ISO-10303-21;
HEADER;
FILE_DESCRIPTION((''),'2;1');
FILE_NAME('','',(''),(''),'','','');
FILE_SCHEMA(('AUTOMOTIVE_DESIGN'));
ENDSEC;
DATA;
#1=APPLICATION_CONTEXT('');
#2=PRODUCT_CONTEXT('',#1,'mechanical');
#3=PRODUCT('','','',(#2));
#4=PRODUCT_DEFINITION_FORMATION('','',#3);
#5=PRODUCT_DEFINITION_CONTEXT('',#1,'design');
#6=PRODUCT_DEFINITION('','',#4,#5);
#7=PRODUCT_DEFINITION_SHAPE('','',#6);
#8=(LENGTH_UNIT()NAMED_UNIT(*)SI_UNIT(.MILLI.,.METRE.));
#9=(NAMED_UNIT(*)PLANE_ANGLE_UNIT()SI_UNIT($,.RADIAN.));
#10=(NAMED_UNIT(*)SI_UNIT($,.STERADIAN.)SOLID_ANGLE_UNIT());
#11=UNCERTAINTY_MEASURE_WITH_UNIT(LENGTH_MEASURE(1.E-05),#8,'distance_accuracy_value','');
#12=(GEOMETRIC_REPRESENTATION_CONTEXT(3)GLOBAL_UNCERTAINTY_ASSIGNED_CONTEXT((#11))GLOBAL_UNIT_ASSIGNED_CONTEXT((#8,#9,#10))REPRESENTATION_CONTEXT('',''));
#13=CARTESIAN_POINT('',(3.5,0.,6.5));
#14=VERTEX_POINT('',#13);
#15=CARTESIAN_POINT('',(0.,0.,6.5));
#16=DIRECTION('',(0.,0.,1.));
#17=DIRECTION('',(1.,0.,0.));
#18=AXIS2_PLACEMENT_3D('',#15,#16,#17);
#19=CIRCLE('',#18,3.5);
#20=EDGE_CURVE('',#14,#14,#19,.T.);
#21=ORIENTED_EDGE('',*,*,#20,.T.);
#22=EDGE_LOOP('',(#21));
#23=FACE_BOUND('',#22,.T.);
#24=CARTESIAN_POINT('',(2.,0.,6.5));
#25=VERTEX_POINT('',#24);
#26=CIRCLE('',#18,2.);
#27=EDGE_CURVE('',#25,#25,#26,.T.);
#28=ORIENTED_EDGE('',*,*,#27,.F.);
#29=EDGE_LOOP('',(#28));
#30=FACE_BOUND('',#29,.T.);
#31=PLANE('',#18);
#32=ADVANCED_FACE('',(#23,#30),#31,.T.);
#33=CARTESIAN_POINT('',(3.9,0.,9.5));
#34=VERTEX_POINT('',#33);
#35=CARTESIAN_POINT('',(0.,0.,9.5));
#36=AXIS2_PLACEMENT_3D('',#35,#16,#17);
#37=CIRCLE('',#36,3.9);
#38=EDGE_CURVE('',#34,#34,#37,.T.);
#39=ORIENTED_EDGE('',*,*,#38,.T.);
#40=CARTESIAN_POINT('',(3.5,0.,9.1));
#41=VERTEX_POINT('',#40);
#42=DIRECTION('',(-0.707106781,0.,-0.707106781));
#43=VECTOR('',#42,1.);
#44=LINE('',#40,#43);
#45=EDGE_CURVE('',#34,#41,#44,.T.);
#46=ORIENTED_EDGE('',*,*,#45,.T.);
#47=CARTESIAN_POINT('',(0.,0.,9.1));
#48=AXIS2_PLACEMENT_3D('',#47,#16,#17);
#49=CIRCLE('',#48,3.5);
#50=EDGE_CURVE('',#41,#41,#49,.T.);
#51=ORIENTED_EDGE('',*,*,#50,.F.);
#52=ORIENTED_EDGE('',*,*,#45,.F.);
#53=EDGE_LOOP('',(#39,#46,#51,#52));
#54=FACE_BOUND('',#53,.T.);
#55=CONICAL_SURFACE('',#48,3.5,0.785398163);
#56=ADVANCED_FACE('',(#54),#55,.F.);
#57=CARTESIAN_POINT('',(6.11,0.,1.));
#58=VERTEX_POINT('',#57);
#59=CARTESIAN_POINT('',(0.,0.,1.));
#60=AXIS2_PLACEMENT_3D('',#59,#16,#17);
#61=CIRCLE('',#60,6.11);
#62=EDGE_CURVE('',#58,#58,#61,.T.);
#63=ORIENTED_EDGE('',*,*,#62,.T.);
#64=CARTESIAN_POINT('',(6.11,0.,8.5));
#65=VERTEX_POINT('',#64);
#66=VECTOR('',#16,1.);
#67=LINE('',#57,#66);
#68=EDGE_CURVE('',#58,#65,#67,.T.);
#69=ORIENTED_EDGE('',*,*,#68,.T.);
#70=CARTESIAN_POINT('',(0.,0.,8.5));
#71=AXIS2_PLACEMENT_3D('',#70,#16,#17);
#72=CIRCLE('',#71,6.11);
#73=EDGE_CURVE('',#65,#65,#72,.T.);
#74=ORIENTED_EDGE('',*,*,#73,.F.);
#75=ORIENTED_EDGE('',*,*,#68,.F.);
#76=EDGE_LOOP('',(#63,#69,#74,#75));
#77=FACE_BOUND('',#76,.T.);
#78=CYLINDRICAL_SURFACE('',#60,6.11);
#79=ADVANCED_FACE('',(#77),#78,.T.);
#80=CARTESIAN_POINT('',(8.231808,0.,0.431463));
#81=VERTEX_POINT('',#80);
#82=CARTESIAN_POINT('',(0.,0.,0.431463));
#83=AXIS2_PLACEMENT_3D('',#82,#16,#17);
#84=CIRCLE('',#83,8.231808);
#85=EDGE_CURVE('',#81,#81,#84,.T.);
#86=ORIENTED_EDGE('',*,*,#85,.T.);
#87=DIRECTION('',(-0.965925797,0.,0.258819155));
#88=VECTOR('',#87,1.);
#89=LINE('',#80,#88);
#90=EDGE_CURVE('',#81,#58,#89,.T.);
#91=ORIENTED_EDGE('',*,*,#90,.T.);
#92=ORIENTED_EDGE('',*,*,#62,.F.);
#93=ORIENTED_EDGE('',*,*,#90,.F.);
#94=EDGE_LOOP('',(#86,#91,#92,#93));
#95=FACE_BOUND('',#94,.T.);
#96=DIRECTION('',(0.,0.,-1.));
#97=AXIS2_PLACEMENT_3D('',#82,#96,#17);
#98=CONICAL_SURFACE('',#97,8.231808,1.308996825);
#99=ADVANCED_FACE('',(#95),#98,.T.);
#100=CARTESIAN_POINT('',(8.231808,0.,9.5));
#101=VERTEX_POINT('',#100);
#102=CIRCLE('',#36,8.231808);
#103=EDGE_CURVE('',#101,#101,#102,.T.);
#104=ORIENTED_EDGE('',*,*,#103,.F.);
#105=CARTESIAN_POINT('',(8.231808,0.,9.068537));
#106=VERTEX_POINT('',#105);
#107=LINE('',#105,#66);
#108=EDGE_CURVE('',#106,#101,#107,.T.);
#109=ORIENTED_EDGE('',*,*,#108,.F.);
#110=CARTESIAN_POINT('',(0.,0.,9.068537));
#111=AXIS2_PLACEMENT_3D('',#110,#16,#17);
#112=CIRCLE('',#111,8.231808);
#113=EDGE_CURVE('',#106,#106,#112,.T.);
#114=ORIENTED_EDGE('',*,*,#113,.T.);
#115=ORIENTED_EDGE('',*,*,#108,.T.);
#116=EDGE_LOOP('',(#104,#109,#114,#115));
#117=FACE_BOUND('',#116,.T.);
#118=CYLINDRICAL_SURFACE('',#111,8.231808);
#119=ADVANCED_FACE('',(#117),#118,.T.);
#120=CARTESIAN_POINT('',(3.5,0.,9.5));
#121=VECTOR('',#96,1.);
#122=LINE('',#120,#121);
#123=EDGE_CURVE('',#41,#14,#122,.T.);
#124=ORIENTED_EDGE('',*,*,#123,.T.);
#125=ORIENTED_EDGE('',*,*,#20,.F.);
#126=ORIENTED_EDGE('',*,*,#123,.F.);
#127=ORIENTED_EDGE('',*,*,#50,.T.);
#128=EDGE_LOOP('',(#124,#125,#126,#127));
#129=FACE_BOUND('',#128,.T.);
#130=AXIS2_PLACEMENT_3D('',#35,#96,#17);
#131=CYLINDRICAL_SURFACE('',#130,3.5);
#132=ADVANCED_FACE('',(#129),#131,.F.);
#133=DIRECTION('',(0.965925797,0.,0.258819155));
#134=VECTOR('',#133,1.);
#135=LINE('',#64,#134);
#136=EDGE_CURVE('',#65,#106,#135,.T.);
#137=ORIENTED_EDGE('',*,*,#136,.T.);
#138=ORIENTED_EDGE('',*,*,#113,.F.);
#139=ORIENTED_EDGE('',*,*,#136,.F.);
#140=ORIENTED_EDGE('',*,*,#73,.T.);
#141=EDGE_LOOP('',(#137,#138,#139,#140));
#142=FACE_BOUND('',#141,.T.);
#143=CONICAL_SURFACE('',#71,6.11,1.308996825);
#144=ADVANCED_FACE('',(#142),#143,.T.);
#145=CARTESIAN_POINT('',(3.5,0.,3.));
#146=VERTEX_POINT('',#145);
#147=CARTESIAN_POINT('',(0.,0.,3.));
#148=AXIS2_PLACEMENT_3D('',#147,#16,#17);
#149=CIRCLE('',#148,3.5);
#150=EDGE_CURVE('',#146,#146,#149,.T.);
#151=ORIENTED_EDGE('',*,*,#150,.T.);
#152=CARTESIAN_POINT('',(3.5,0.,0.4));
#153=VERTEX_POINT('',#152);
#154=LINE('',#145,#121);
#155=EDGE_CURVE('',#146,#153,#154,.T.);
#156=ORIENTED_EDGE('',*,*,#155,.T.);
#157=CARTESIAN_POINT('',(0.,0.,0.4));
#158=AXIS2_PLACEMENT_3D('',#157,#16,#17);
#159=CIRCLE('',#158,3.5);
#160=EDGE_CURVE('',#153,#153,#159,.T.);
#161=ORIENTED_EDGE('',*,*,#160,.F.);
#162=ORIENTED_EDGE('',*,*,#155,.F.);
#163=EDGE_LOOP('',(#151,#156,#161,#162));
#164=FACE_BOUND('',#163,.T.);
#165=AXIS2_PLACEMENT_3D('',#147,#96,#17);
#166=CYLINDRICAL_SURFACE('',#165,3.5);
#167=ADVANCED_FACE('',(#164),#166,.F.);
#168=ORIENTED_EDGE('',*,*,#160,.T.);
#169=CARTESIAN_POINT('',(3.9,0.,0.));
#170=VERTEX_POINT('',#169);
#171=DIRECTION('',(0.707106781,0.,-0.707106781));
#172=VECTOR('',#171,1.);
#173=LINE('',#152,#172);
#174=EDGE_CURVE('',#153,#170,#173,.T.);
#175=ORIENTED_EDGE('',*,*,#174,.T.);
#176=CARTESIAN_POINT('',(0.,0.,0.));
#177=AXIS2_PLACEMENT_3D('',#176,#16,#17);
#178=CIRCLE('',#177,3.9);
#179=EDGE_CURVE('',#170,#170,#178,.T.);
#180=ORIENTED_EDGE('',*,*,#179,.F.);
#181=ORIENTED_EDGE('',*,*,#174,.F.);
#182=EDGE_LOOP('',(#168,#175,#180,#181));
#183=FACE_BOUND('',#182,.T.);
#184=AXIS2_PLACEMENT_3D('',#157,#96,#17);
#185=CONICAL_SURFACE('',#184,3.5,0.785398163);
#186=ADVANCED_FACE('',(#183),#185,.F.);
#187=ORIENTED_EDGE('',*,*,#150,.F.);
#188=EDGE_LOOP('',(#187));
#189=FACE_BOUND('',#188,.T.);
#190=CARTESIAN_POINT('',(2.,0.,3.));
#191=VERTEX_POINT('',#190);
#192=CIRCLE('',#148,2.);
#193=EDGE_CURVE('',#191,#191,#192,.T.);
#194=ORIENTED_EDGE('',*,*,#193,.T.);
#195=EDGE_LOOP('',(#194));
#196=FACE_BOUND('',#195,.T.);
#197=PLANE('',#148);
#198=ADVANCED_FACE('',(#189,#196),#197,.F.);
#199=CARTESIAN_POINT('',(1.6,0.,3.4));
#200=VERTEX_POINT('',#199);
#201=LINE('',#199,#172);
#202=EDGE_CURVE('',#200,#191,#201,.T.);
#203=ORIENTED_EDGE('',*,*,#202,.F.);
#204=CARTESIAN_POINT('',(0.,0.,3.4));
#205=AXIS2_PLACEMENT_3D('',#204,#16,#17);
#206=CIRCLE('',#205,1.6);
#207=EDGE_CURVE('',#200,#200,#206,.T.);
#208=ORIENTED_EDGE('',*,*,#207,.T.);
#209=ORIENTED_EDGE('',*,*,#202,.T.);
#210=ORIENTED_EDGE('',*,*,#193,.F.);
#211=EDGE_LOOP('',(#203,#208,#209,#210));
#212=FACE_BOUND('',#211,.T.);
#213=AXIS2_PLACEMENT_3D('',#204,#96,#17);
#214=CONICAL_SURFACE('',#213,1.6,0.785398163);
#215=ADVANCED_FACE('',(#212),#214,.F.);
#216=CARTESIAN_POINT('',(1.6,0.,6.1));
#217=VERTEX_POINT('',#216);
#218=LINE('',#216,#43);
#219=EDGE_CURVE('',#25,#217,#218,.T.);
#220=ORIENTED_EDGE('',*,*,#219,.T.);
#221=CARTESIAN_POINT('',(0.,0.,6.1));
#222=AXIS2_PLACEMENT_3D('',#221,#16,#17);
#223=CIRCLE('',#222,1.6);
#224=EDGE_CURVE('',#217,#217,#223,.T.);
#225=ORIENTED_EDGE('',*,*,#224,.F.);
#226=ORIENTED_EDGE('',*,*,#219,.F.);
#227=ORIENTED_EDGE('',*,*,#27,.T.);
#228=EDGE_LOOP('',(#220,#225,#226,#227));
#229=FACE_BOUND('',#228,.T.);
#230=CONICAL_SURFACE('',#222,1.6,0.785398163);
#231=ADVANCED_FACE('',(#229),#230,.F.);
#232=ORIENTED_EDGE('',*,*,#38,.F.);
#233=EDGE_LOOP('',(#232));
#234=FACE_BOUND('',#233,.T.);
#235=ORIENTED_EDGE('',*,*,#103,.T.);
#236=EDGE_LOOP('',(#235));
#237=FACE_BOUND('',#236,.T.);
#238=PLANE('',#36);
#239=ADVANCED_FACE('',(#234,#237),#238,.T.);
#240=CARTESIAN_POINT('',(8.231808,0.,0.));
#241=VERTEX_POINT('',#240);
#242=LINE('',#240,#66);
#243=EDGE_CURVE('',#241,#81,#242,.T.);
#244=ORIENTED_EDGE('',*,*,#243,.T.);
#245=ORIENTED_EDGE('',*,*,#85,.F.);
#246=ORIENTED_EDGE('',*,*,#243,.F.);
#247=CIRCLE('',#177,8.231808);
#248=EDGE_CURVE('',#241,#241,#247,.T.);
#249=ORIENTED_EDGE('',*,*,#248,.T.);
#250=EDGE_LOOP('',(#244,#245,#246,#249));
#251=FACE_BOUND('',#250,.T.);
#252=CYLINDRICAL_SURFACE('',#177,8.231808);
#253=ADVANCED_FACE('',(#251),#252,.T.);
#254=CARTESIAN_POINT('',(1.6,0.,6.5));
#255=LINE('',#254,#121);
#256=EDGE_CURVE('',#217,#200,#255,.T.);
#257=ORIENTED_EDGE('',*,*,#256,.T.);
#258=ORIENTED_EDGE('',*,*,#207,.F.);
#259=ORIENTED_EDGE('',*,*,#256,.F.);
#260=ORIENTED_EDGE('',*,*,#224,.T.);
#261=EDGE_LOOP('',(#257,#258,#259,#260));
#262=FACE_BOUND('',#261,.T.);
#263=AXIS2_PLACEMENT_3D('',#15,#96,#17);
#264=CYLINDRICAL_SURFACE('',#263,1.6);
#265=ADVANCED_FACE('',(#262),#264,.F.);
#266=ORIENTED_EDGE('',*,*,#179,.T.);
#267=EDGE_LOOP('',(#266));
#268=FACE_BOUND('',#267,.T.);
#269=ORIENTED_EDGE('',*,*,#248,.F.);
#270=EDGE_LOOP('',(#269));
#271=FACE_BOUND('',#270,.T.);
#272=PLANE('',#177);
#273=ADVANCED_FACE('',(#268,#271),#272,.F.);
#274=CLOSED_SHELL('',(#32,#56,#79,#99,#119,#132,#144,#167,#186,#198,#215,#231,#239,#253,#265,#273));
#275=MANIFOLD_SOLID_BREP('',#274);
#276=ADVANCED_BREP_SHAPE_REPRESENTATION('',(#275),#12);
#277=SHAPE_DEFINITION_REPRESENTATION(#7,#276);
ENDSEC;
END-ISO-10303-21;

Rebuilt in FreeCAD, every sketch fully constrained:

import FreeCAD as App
import Part
import Sketcher
Q = App.Units.Quantity


def edges_at(feature, points):
    """Names of the edges that pass closest to the given points."""
    edges = feature.Shape.Edges
    near = lambda p: min(range(len(edges)), key=lambda i: edges[i].distToShape(Part.Vertex(*p))[0])
    return sorted({f"Edge{near(p) + 1}" for p in points})


def add_polygon(sketch, points):
    """Adds a closed chain of lines whose ends are joined by coincident constraints."""
    first, n = sketch.GeometryCount, len(points)
    for a, b in zip(points, points[1:] + points[:1]):
        sketch.addGeometry(Part.LineSegment(App.Vector(*a, 0), App.Vector(*b, 0)), False)
    for i in range(n):
        sketch.addConstraint(Sketcher.Constraint("Coincident", first + i, 2, first + (i + 1) % n, 1))

doc = App.newDocument("Part")
body = doc.addObject("PartDesign::Body", "Body")

# Sketch on XZ plane
sketch1 = body.newObject("Sketcher::SketchObject", "Sketch")
sketch1.AttachmentSupport = (doc.getObject("XZ_Plane"), [""])
sketch1.MapMode = "FlatFace"
add_polygon(sketch1, [(3.5, 3), (3.5, 0), (8.23, 0), (8.23, 0.43), (6.11, 1), (6.11, 8.5), (8.23, 9.07), (8.23, 9.5), (3.5, 9.5), (3.5, 6.5), (1.6, 6.5), (1.6, 3)])  # lines 0-11
sketch1.addConstraint(Sketcher.Constraint("Vertical", 0))
sketch1.addConstraint(Sketcher.Constraint("Horizontal", 1))
sketch1.addConstraint(Sketcher.Constraint("Vertical", 2))
sketch1.addConstraint(Sketcher.Constraint("Vertical", 4))
sketch1.addConstraint(Sketcher.Constraint("Vertical", 6))
sketch1.addConstraint(Sketcher.Constraint("Horizontal", 7))
sketch1.addConstraint(Sketcher.Constraint("Vertical", 8))
sketch1.addConstraint(Sketcher.Constraint("Horizontal", 9))
sketch1.addConstraint(Sketcher.Constraint("Vertical", 10))
sketch1.addConstraint(Sketcher.Constraint("Horizontal", 11))
sketch1.addConstraint(Sketcher.Constraint("PointOnObject", 0, 2, -1))
sketch1.addConstraint(Sketcher.Constraint("Vertical", 2, 2, 5, 2))
sketch1.addConstraint(Sketcher.Constraint("Vertical", 0, 2, 7, 2))
sketch1.addConstraint(Sketcher.Constraint("Equal", 2, 6))
sketch1.addConstraint(Sketcher.Constraint("Equal", 0, 8))
sketch1.addConstraint(Sketcher.Constraint("Equal", 3, 5))
sketch1.addConstraint(Sketcher.Constraint("DistanceY", 0, 2, 0, 1, Q("3 mm")))
sketch1.addConstraint(Sketcher.Constraint("Angle", 3, Q("164.999993 deg")))
sketch1.addConstraint(Sketcher.Constraint("DistanceX", 9, 2, 9, 1, Q("1.9 mm")))
sketch1.addConstraint(Sketcher.Constraint("DistanceY", 4, 1, 4, 2, Q("7.5 mm")))
sketch1.addConstraint(Sketcher.Constraint("DistanceY", 10, 2, 10, 1, Q("3.5 mm")))
sketch1.addConstraint(Sketcher.Constraint("DistanceX", -1, 1, 0, 2, Q("3.5 mm")))
sketch1.addConstraint(Sketcher.Constraint("DistanceX", -1, 1, 3, 2, Q("6.11 mm")))
sketch1.addConstraint(Sketcher.Constraint("DistanceX", 1, 1, 1, 2, Q("4.731808 mm")))
revolution = body.newObject("PartDesign::Revolution", "Revolution")
revolution.Profile = sketch1
revolution.ReferenceAxis = (sketch1, ["V_Axis"])
revolution.Angle = 360
doc.recompute()

chamfer = body.newObject("PartDesign::Chamfer", "Chamfer")
chamfer.Base = (revolution, edges_at(revolution, [
    (-3.5, 0, 9.5),
    (-3.5, 0, 0),
    (-1.6, 0, 6.5),
    (-1.6, 0, 3),
    (1.6, 0, 4.75),
]))
chamfer.Size = 0.4

doc.recompute()
